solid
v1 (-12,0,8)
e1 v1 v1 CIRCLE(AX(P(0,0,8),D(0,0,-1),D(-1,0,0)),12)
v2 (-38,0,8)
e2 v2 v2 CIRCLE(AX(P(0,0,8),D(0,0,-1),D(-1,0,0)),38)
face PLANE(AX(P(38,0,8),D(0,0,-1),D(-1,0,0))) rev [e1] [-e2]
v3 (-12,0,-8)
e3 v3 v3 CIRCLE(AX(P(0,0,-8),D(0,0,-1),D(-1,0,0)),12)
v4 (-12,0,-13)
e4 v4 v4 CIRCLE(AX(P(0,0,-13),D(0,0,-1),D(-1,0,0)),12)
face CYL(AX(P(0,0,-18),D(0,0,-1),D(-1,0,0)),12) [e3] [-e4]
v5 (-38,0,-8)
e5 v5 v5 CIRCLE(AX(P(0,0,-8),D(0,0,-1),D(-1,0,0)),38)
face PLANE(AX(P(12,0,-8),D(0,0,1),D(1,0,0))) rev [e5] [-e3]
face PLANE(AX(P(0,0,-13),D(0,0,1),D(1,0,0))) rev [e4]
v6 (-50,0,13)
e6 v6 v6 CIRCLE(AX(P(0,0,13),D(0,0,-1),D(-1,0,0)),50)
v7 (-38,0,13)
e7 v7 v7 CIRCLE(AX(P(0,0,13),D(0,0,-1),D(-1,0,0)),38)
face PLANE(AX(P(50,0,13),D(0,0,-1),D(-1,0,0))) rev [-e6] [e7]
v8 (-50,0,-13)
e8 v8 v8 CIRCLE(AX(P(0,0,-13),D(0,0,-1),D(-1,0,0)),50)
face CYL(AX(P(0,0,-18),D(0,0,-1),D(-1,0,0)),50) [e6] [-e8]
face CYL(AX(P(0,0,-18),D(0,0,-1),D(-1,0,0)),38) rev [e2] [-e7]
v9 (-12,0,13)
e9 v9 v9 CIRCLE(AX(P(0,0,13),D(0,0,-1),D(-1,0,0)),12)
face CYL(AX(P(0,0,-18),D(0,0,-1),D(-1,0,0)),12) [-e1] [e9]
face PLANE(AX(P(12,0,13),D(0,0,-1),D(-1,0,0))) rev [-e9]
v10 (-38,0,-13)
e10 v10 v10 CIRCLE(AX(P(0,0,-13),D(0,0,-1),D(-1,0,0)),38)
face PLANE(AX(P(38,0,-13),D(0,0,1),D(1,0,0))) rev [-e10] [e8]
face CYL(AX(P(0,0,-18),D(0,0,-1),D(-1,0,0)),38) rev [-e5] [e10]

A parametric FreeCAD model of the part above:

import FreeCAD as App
import Part
import Sketcher
Q = App.Units.Quantity


def add_polygon(sketch, points):
    """Adds a closed chain of lines whose ends are joined by coincident constraints."""
    first, n = sketch.GeometryCount, len(points)
    for a, b in zip(points, points[1:] + points[:1]):
        sketch.addGeometry(Part.LineSegment(App.Vector(*a, 0), App.Vector(*b, 0)), False)
    for i in range(n):
        sketch.addConstraint(Sketcher.Constraint("Coincident", first + i, 2, first + (i + 1) % n, 1))

doc = App.newDocument("Part")
params = doc.addObject("Spreadsheet::Sheet", "Params")
for row, (alias, value) in enumerate([
    ("sketch1_width", "12 mm"),
    ("sketch1_width2", "26 mm"),
    ("sketch1_height", "5 mm"),
    ("revolution_angle", "360 deg"),
], start=1):
    params.set(f"A{row}", alias)
    params.set(f"B{row}", "=" + value)
    params.setAlias(f"B{row}", alias)

body = doc.addObject("PartDesign::Body", "Body")

# Sketch on XZ plane
sketch1 = body.newObject("Sketcher::SketchObject", "Sketch")
sketch1.AttachmentSupport = (doc.getObject("XZ_Plane"), [""])
sketch1.MapMode = "FlatFace"
add_polygon(sketch1, [(12, -13), (0, -13), (0, 13), (12, 13), (12, 8), (38, 8), (38, 13), (50, 13), (50, -13), (38, -13), (38, -8), (12, -8)])  # lines 0-11
sketch1.addConstraint(Sketcher.Constraint("Horizontal", 0))
sketch1.addConstraint(Sketcher.Constraint("Vertical", 1))
sketch1.addConstraint(Sketcher.Constraint("Horizontal", 2))
sketch1.addConstraint(Sketcher.Constraint("Vertical", 3))
sketch1.addConstraint(Sketcher.Constraint("Horizontal", 4))
sketch1.addConstraint(Sketcher.Constraint("Vertical", 5))
sketch1.addConstraint(Sketcher.Constraint("Horizontal", 6))
sketch1.addConstraint(Sketcher.Constraint("Vertical", 7))
sketch1.addConstraint(Sketcher.Constraint("Horizontal", 8))
sketch1.addConstraint(Sketcher.Constraint("Vertical", 9))
sketch1.addConstraint(Sketcher.Constraint("Horizontal", 10))
sketch1.addConstraint(Sketcher.Constraint("Vertical", 11))
sketch1.addConstraint(Sketcher.Constraint("Symmetric", 0, 2, 1, 2, -1, 1))
sketch1.addConstraint(Sketcher.Constraint("Symmetric", 5, 2, 8, 2, -1))
sketch1.addConstraint(Sketcher.Constraint("Symmetric", 3, 2, 10, 2, -1))
sketch1.addConstraint(Sketcher.Constraint("Horizontal", 2, 2, 5, 2))
sketch1.addConstraint(Sketcher.Constraint("Equal", 2, 6))
sketch1.addConstraint(Sketcher.Constraint("Equal", 10, 1))
sketch1.addConstraint(Sketcher.Constraint("DistanceX", 0, 2, 0, 1, Q("12 mm")))
sketch1.addConstraint(Sketcher.Constraint("DistanceX", 4, 1, 4, 2, Q("26 mm")))
sketch1.addConstraint(Sketcher.Constraint("DistanceY", 3, 2, 3, 1, Q("5 mm")))
sketch1.setExpression("Constraints[30]", "Params.sketch1_width")
sketch1.setExpression("Constraints[31]", "Params.sketch1_width2")
sketch1.setExpression("Constraints[32]", "Params.sketch1_height")
revolution = body.newObject("PartDesign::Revolution", "Revolution")
revolution.Profile = sketch1
revolution.ReferenceAxis = (sketch1, ["V_Axis"])
revolution.setExpression("Angle", "Params.revolution_angle")

doc.recompute()
